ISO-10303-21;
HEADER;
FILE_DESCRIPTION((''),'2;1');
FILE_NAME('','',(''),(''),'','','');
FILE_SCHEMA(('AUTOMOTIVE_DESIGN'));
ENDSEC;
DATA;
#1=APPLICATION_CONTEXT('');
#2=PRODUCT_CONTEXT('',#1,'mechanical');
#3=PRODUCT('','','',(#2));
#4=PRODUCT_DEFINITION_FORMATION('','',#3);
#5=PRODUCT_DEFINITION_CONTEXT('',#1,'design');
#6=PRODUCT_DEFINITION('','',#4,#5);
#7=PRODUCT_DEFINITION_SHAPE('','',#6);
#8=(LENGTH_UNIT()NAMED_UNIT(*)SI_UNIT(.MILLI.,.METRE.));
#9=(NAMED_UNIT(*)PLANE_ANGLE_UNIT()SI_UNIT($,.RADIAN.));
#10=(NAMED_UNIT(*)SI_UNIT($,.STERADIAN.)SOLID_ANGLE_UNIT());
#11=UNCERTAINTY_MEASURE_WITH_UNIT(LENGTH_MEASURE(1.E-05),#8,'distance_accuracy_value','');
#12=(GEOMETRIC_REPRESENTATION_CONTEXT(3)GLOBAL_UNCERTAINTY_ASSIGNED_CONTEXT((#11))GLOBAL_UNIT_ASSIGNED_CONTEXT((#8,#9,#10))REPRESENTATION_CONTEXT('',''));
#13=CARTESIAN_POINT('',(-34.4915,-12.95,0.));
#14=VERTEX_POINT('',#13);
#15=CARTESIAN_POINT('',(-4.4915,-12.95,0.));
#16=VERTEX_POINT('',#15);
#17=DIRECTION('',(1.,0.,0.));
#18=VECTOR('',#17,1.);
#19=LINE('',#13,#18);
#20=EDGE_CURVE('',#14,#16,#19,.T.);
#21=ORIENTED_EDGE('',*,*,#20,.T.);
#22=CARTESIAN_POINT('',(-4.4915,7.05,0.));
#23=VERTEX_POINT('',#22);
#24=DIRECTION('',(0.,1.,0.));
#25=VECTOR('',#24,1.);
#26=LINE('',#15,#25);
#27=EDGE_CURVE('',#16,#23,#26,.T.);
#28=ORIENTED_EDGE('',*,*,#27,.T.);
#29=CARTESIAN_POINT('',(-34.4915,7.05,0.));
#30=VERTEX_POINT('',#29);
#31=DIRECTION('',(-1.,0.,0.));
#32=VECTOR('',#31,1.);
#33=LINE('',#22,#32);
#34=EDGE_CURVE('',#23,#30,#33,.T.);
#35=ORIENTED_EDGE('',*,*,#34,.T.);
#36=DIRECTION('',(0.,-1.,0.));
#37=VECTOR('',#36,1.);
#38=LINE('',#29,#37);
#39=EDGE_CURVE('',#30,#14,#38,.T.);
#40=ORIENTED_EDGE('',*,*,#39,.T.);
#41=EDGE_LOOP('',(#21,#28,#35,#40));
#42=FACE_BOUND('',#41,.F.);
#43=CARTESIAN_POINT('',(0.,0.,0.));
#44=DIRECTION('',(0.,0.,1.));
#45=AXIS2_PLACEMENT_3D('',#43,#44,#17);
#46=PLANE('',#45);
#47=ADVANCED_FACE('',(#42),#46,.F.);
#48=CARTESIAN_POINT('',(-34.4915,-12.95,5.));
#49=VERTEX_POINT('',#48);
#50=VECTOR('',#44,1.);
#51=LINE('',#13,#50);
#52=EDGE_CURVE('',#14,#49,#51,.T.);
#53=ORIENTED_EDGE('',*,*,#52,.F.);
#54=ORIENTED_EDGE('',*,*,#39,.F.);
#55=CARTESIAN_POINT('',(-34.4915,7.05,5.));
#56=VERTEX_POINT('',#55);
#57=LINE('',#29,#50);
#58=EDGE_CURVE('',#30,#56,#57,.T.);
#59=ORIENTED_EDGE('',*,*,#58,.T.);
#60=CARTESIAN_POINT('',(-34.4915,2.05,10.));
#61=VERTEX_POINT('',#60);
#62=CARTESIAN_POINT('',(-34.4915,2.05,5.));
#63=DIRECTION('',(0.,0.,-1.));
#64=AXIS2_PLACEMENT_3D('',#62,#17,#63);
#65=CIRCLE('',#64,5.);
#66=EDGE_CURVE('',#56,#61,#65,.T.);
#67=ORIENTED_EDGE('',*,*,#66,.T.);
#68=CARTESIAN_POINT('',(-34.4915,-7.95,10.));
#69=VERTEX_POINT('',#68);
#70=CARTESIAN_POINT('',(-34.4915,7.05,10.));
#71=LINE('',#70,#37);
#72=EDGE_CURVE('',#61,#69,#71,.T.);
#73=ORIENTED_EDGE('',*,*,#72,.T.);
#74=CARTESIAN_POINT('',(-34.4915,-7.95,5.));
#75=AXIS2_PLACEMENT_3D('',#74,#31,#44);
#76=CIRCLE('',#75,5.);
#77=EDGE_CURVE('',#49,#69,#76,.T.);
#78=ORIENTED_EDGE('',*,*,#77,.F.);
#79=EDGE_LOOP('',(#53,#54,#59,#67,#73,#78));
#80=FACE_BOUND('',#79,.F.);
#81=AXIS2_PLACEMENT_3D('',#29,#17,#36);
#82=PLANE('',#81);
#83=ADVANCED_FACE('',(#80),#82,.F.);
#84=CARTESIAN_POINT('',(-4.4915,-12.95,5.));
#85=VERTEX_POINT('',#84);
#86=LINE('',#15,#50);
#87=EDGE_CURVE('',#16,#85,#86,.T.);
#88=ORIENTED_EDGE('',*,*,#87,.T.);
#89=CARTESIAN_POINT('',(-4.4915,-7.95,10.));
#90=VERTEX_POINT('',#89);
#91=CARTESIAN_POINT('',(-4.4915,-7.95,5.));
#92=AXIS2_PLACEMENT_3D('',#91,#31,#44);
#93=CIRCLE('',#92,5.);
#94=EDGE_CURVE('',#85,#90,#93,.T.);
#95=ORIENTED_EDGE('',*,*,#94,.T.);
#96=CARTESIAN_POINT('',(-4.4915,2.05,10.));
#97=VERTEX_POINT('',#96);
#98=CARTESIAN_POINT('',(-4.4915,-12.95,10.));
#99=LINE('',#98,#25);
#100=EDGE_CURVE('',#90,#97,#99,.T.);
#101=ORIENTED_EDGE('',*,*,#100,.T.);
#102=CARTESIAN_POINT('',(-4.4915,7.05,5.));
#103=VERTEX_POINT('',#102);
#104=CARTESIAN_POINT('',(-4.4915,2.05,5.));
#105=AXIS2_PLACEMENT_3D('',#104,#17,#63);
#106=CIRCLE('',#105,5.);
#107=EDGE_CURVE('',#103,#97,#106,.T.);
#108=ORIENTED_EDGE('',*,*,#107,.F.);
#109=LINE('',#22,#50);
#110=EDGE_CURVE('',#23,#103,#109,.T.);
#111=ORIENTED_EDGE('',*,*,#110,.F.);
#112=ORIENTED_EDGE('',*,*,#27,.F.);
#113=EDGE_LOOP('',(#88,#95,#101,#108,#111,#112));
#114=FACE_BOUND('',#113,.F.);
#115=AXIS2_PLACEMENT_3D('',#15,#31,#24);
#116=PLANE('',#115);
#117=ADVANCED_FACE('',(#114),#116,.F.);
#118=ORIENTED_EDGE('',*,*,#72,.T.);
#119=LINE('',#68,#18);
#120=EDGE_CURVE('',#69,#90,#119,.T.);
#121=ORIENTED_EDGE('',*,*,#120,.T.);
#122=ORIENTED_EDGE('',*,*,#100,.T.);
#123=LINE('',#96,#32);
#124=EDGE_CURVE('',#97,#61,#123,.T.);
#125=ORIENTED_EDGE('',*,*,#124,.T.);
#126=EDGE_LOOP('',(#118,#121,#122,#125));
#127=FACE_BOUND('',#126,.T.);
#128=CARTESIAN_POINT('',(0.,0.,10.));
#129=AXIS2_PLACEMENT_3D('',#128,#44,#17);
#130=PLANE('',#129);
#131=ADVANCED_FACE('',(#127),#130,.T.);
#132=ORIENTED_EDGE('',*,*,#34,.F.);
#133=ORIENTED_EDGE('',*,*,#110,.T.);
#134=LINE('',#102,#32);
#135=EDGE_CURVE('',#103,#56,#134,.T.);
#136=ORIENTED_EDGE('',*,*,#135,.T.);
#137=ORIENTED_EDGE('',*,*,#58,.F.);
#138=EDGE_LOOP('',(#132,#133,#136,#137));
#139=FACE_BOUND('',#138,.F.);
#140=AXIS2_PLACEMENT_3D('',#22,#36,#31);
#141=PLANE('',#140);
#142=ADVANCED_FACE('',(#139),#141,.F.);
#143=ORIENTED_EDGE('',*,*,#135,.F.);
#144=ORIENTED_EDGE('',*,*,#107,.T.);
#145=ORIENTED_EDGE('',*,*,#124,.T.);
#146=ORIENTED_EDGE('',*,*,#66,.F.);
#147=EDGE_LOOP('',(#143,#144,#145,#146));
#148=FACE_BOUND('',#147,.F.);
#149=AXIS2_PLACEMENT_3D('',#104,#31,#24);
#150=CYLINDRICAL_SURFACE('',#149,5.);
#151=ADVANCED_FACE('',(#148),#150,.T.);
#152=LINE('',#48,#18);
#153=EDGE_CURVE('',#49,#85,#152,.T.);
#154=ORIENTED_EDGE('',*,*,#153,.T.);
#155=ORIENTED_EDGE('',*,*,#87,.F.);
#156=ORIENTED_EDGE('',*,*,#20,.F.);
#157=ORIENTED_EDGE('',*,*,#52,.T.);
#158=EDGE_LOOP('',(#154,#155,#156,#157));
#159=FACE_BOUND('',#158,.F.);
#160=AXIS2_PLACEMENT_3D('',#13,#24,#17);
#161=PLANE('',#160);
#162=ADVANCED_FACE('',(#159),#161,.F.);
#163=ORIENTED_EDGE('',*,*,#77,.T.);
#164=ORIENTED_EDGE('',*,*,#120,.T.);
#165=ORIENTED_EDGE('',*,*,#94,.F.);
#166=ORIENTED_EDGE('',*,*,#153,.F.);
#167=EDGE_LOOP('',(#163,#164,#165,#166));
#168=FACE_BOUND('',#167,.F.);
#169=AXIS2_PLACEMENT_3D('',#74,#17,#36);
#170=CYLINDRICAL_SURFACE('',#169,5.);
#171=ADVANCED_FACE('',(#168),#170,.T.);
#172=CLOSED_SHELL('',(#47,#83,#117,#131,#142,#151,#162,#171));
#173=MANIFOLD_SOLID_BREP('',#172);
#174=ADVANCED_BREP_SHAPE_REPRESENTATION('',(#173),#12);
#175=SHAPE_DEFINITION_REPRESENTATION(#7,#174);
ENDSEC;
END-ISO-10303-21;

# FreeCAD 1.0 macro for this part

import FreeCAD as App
import Part
import Sketcher
Q = App.Units.Quantity


def edges_at(feature, points):
    """Names of the edges that pass closest to the given points."""
    edges = feature.Shape.Edges
    near = lambda p: min(range(len(edges)), key=lambda i: edges[i].distToShape(Part.Vertex(*p))[0])
    return sorted({f"Edge{near(p) + 1}" for p in points})


def add_polygon(sketch, points):
    """Adds a closed chain of lines whose ends are joined by coincident constraints."""
    first, n = sketch.GeometryCount, len(points)
    for a, b in zip(points, points[1:] + points[:1]):
        sketch.addGeometry(Part.LineSegment(App.Vector(*a, 0), App.Vector(*b, 0)), False)
    for i in range(n):
        sketch.addConstraint(Sketcher.Constraint("Coincident", first + i, 2, first + (i + 1) % n, 1))

doc = App.newDocument("Part")
params = doc.addObject("Spreadsheet::Sheet", "Params")
for row, (alias, value) in enumerate([
    ("sketch1_width", "30 mm"),
    ("sketch1_height", "20 mm"),
    ("pad1_length", "10 mm"),
    ("fillet_radius", "5 mm"),
], start=1):
    params.set(f"A{row}", alias)
    params.set(f"B{row}", "=" + value)
    params.setAlias(f"B{row}", alias)

body = doc.addObject("PartDesign::Body", "Body")

# Sketch on XY plane
sketch1 = body.newObject("Sketcher::SketchObject", "Sketch")
sketch1.AttachmentSupport = (doc.getObject("XY_Plane"), [""])
sketch1.MapMode = "FlatFace"
add_polygon(sketch1, [(-4, -13), (-4, 7), (-34, 7), (-34, -13)])  # lines 0-3
sketch1.addConstraint(Sketcher.Constraint("Vertical", 0))
sketch1.addConstraint(Sketcher.Constraint("Horizontal", 1))
sketch1.addConstraint(Sketcher.Constraint("Vertical", 2))
sketch1.addConstraint(Sketcher.Constraint("Horizontal", 3))
sketch1.addConstraint(Sketcher.Constraint("DistanceX", 1, 2, 1, 1, Q("30 mm")))
sketch1.addConstraint(Sketcher.Constraint("DistanceY", 0, 1, 0, 2, Q("20 mm")))
sketch1.addConstraint(Sketcher.Constraint("DistanceY", -1, 1, 0, 2, Q("7.05 mm")))
sketch1.addConstraint(Sketcher.Constraint("DistanceX", 0, 2, -1, 1, Q("4.4915 mm")))
sketch1.setExpression("Constraints[8]", "Params.sketch1_width")
sketch1.setExpression("Constraints[9]", "Params.sketch1_height")
pad1 = body.newObject("PartDesign::Pad", "Pad")
pad1.Profile = sketch1
pad1.setExpression("Length", "Params.pad1_length")
doc.recompute()

fillet = body.newObject("PartDesign::Fillet", "Fillet")
fillet.Base = (pad1, edges_at(pad1, [(-19.491, -12.95, 10), (-19.491, 7.05, 10)]))
fillet.setExpression("Radius", "Params.fillet_radius")

doc.recompute()
